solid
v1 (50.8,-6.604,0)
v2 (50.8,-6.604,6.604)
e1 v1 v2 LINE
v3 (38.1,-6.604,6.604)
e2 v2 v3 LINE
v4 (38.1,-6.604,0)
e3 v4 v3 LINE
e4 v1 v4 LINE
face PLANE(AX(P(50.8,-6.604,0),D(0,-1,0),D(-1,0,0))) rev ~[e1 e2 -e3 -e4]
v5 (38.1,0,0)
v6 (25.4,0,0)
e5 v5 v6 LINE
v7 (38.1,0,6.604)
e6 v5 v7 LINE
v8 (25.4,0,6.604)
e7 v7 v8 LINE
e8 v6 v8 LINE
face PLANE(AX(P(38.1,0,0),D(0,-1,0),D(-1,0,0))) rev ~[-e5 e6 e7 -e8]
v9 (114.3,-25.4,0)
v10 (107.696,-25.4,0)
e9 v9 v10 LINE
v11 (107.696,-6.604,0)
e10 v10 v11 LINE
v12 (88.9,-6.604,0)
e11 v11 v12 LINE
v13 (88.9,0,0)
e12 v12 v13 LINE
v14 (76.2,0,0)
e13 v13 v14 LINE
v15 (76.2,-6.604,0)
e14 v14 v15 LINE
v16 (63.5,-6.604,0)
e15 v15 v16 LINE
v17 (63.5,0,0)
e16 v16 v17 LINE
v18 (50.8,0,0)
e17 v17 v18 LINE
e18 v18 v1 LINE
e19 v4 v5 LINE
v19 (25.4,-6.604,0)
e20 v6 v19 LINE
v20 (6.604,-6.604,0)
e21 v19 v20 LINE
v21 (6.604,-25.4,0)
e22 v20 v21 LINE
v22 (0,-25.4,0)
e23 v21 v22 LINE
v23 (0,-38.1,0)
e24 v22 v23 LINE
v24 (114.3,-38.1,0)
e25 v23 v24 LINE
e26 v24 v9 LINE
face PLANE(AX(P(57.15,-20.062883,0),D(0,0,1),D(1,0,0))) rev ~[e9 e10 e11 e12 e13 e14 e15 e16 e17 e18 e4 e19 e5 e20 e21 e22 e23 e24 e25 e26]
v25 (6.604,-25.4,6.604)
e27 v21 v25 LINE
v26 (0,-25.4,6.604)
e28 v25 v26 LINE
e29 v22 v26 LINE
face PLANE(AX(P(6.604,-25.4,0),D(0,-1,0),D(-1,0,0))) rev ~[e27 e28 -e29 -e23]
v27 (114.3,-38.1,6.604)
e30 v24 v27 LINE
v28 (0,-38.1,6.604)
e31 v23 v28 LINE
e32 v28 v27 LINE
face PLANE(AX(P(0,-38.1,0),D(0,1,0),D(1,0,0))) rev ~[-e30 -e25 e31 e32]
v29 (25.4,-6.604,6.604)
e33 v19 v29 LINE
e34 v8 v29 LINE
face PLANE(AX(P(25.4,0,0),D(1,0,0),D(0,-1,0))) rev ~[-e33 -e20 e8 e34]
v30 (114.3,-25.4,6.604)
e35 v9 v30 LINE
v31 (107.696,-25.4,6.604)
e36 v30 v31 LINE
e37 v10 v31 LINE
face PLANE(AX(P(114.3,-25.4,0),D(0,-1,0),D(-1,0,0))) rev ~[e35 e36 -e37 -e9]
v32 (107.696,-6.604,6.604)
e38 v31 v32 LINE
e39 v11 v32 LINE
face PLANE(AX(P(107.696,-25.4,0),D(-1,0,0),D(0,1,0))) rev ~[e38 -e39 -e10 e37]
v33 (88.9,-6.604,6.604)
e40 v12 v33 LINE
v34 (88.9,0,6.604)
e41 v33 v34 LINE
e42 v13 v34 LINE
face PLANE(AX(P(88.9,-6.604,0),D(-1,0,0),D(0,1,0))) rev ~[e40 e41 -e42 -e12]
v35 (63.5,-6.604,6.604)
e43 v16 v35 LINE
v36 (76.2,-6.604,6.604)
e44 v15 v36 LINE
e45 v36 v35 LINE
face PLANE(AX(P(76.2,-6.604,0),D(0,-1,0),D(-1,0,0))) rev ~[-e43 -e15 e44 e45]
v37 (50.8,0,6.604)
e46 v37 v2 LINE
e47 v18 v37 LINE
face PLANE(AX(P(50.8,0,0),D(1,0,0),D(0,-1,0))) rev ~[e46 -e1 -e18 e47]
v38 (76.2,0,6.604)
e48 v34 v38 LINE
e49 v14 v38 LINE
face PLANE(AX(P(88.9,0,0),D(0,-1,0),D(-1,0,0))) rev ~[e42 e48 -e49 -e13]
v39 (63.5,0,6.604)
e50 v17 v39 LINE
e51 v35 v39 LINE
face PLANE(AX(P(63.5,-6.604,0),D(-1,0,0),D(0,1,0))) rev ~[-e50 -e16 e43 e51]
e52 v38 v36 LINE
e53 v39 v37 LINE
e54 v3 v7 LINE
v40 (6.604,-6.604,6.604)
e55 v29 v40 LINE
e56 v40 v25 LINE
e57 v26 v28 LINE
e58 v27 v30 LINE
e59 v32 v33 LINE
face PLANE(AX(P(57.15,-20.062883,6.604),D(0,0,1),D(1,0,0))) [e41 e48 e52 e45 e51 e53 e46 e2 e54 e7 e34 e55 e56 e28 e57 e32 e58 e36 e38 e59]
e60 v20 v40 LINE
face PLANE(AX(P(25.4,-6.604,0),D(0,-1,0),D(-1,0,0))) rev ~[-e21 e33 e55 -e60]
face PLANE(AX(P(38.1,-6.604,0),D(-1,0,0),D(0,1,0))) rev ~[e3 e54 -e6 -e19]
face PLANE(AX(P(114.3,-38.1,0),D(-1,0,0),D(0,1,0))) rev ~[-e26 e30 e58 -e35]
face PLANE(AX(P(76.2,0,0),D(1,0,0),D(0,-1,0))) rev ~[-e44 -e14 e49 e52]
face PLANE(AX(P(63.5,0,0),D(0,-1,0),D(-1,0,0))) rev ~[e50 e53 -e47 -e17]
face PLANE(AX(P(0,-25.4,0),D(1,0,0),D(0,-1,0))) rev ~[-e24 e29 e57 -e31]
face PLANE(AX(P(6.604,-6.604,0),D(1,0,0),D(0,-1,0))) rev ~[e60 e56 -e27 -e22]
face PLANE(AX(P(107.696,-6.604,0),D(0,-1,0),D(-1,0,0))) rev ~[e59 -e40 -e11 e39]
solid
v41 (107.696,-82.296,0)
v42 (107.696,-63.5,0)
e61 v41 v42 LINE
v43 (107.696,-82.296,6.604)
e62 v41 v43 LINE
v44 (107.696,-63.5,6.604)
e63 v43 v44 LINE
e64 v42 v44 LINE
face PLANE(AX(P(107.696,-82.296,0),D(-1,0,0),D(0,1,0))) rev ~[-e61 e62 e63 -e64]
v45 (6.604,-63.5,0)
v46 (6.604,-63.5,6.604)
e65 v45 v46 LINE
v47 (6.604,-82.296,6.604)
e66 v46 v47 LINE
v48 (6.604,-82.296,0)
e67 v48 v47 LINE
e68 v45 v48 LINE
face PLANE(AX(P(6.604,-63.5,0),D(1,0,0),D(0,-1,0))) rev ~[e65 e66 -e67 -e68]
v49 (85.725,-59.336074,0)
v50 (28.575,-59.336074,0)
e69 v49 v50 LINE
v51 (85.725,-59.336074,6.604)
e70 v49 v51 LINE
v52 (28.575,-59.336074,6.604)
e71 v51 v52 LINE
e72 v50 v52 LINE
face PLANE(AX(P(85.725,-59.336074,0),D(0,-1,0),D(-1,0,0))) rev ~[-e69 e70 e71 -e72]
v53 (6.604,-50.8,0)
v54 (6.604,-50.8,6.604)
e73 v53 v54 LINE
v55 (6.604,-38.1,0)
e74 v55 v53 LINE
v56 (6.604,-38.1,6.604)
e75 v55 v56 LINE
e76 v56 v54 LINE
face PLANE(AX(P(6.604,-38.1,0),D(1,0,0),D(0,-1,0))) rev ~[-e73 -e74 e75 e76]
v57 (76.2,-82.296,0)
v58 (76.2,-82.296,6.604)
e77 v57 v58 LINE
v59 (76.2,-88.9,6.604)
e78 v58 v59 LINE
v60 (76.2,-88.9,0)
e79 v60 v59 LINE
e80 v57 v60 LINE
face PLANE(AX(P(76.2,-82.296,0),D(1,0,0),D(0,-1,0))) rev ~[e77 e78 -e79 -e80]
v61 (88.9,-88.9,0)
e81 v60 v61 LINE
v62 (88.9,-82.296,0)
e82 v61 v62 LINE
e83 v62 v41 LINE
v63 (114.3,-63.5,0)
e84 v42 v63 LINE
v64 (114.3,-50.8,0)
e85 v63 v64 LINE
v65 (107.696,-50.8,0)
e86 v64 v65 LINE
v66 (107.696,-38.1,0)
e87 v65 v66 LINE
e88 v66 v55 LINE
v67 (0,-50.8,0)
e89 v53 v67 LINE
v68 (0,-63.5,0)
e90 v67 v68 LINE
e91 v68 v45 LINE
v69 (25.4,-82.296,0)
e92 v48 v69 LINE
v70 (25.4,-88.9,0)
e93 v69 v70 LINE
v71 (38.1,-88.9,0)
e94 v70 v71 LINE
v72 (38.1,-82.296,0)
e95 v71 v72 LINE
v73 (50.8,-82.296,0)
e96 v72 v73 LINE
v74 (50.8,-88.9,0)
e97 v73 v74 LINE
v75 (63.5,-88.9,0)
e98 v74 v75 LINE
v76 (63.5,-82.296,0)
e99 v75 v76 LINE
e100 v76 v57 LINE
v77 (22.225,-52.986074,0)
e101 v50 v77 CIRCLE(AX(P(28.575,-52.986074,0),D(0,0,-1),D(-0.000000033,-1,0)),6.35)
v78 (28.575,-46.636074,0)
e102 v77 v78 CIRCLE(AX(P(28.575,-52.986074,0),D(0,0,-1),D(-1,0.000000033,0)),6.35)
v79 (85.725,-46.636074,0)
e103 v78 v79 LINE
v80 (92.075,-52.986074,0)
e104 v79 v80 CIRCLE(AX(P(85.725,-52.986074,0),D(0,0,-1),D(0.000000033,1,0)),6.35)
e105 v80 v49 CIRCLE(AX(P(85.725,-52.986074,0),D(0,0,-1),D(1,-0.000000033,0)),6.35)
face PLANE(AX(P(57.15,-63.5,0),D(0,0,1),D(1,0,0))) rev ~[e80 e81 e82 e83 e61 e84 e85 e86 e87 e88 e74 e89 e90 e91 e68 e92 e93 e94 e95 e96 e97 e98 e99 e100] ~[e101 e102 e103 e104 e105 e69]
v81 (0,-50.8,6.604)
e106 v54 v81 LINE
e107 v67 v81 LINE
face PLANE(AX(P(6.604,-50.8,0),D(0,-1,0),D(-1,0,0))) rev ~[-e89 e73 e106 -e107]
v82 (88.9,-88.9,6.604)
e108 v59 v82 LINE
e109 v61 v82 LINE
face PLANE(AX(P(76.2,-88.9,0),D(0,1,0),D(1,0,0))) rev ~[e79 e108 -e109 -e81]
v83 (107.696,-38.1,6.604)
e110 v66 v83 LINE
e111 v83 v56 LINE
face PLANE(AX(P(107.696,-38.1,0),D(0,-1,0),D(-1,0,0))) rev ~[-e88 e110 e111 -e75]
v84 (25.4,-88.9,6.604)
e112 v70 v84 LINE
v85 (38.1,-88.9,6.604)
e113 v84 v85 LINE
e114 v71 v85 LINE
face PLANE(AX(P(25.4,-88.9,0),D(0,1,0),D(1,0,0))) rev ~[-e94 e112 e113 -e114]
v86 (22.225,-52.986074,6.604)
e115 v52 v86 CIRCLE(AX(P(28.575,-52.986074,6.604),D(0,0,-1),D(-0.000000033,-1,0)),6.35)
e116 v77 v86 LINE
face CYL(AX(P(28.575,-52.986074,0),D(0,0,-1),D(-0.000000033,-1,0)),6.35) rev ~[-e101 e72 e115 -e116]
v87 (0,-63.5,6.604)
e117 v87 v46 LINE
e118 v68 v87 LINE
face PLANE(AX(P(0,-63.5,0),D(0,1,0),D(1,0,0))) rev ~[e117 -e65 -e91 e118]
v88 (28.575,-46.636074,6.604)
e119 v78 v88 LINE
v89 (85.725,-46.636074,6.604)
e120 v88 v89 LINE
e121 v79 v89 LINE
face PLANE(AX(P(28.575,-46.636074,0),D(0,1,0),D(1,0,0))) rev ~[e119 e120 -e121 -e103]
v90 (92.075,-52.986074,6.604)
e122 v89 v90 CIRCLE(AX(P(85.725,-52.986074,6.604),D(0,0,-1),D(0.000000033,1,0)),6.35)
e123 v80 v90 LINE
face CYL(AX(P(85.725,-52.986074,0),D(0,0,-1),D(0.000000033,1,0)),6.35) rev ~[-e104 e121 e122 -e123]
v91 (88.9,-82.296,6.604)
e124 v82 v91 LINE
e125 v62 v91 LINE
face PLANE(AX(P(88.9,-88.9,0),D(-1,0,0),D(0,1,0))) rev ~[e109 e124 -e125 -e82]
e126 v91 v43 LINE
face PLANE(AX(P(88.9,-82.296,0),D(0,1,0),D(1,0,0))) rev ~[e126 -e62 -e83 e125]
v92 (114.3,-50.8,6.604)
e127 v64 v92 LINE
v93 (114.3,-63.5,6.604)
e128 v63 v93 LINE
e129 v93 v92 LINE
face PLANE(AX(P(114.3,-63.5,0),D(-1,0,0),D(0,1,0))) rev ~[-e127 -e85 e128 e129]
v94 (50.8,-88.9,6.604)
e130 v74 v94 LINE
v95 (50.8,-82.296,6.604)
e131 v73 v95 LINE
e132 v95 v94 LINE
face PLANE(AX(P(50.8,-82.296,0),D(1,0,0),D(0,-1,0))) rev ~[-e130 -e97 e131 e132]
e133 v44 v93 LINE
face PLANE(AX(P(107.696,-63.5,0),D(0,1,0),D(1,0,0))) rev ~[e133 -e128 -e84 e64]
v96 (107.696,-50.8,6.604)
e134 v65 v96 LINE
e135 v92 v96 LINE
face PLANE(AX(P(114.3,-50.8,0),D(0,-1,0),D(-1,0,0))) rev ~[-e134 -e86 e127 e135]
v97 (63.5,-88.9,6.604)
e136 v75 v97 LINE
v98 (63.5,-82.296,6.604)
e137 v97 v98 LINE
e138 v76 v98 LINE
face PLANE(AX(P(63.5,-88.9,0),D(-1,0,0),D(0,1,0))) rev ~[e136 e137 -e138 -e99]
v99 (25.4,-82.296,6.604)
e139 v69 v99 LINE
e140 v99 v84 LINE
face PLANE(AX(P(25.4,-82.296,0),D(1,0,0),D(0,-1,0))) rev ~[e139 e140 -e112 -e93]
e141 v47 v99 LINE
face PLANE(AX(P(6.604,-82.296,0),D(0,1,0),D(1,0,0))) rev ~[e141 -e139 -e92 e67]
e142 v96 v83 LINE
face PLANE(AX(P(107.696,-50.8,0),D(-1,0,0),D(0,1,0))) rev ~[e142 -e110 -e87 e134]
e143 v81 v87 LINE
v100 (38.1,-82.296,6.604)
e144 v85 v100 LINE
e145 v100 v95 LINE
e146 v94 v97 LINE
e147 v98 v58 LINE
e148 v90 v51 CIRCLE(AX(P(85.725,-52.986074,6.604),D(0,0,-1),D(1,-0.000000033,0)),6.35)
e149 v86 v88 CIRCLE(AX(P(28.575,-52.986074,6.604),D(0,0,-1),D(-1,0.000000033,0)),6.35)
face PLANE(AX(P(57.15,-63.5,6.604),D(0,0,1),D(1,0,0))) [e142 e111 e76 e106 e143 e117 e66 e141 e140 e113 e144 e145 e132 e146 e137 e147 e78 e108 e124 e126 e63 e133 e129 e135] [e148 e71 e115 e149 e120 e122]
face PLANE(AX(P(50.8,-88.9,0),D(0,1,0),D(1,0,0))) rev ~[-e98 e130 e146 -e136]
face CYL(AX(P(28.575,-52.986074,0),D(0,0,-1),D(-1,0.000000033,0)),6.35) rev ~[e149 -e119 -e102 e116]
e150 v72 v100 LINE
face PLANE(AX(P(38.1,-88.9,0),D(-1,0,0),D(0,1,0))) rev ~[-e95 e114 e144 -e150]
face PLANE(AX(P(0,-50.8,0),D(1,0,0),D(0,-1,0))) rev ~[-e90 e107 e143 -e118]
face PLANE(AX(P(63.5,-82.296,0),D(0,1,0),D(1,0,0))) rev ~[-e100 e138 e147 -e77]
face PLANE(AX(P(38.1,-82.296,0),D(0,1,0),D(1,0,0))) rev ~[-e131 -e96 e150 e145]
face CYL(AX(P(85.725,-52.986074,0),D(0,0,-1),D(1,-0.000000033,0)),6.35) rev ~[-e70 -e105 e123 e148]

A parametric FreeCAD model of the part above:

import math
import FreeCAD as App
import Part
import Sketcher

V = App.Vector
Q = App.Units.Quantity

doc = App.newDocument("Part")
body = doc.addObject("PartDesign::Body", "Body")

# Sketch on XY plane
sketch1 = body.newObject("Sketcher::SketchObject", "Sketch")
sketch1.AttachmentSupport = (doc.getObject("XY_Plane"), [""])
sketch1.MapMode = "FlatFace"
sketch1.addGeometry([
    Part.LineSegment(V(38, 0, 0), V(25, 0, 0)),  # 0
    Part.LineSegment(V(25, 0, 0), V(25, -7, 0)),  # 1
    Part.LineSegment(V(25, -7, 0), V(7, -7, 0)),  # 2
    Part.LineSegment(V(7, -7, 0), V(7, -25, 0)),  # 3
    Part.LineSegment(V(7, -25, 0), V(0, -25, 0)),  # 4
    Part.LineSegment(V(0, -25, 0), V(0, -38, 0)),  # 5
    Part.LineSegment(V(0, -38, 0), V(114, -38, 0)),  # 6
    Part.LineSegment(V(114, -38, 0), V(114, -25, 0)),  # 7
    Part.LineSegment(V(114, -25, 0), V(108, -25, 0)),  # 8
    Part.LineSegment(V(108, -25, 0), V(108, -7, 0)),  # 9
    Part.LineSegment(V(108, -7, 0), V(89, -7, 0)),  # 10
    Part.LineSegment(V(89, -7, 0), V(89, 0, 0)),  # 11
    Part.LineSegment(V(89, 0, 0), V(76, 0, 0)),  # 12
    Part.LineSegment(V(76, 0, 0), V(76, -7, 0)),  # 13
    Part.LineSegment(V(76, -7, 0), V(64, -7, 0)),  # 14
    Part.LineSegment(V(64, -7, 0), V(64, 0, 0)),  # 15
    Part.LineSegment(V(64, 0, 0), V(51, 0, 0)),  # 16
    Part.LineSegment(V(51, 0, 0), V(51, -7, 0)),  # 17
    Part.LineSegment(V(51, -7, 0), V(38, -7, 0)),  # 18
    Part.LineSegment(V(38, -7, 0), V(38, 0, 0)),  # 19
], False)
sketch1.addConstraint([
    Sketcher.Constraint("Coincident", 0, 2, 1, 1),
    Sketcher.Constraint("Coincident", 1, 2, 2, 1),
    Sketcher.Constraint("Coincident", 2, 2, 3, 1),
    Sketcher.Constraint("Coincident", 3, 2, 4, 1),
    Sketcher.Constraint("Coincident", 4, 2, 5, 1),
    Sketcher.Constraint("Coincident", 5, 2, 6, 1),
    Sketcher.Constraint("Coincident", 6, 2, 7, 1),
    Sketcher.Constraint("Coincident", 7, 2, 8, 1),
    Sketcher.Constraint("Coincident", 8, 2, 9, 1),
    Sketcher.Constraint("Coincident", 9, 2, 10, 1),
    Sketcher.Constraint("Coincident", 10, 2, 11, 1),
    Sketcher.Constraint("Coincident", 11, 2, 12, 1),
    Sketcher.Constraint("Coincident", 12, 2, 13, 1),
    Sketcher.Constraint("Coincident", 13, 2, 14, 1),
    Sketcher.Constraint("Coincident", 14, 2, 15, 1),
    Sketcher.Constraint("Coincident", 15, 2, 16, 1),
    Sketcher.Constraint("Coincident", 16, 2, 17, 1),
    Sketcher.Constraint("Coincident", 17, 2, 18, 1),
    Sketcher.Constraint("Coincident", 18, 2, 19, 1),
    Sketcher.Constraint("Coincident", 19, 2, 0, 1),
    Sketcher.Constraint("Horizontal", 0),
    Sketcher.Constraint("Vertical", 1),
    Sketcher.Constraint("Horizontal", 2),
    Sketcher.Constraint("Vertical", 3),
    Sketcher.Constraint("Horizontal", 4),
    Sketcher.Constraint("Vertical", 5),
    Sketcher.Constraint("Horizontal", 6),
    Sketcher.Constraint("Vertical", 7),
    Sketcher.Constraint("Horizontal", 8),
    Sketcher.Constraint("Vertical", 9),
    Sketcher.Constraint("Horizontal", 10),
    Sketcher.Constraint("Vertical", 11),
    Sketcher.Constraint("Horizontal", 12),
    Sketcher.Constraint("Vertical", 13),
    Sketcher.Constraint("Horizontal", 14),
    Sketcher.Constraint("Vertical", 15),
    Sketcher.Constraint("Horizontal", 16),
    Sketcher.Constraint("Vertical", 17),
    Sketcher.Constraint("Horizontal", 18),
    Sketcher.Constraint("Vertical", 19),
    Sketcher.Constraint("PointOnObject", 0, 2, -1),
    Sketcher.Constraint("PointOnObject", 4, 2, -2),
    Sketcher.Constraint("PointOnObject", 11, 2, -1),
    Sketcher.Constraint("PointOnObject", 15, 2, -1),
    Sketcher.Constraint("Horizontal", 4, 2, 7, 2),
    Sketcher.Constraint("Horizontal", 2, 2, 9, 2),
    Sketcher.Constraint("Horizontal", 10, 2, 13, 2),
    Sketcher.Constraint("Horizontal", 14, 2, 17, 2),
    Sketcher.Constraint("Equal", 4, 8),
    Sketcher.Constraint("Equal", 2, 10),
    Sketcher.Constraint("Equal", 0, 12),
    Sketcher.Constraint("Equal", 12, 14),
    Sketcher.Constraint("Equal", 14, 16),
    Sketcher.Constraint("Equal", 16, 18),
    Sketcher.Constraint("Equal", 8, 1),
    Sketcher.Constraint("Equal", 10, 3),
    Sketcher.Constraint("Equal", 18, 5),
    Sketcher.Constraint("DistanceX", 0, 2, 0, 1, Q("0.5 in")),
    Sketcher.Constraint("DistanceX", 6, 1, 6, 2, Q("4.5 in")),
    Sketcher.Constraint("DistanceX", 2, 2, 2, 1, Q("0.74 in")),
])
pad1 = body.newObject("PartDesign::Pad", "Pad")
pad1.Profile = sketch1
pad1.Length = Q("0.26 in")
body2 = doc.addObject("PartDesign::Body", "Body001")

# Sketch on XY plane
sketch2 = body2.newObject("Sketcher::SketchObject", "Sketch001")
sketch2.AttachmentSupport = (doc.getObject("XY_Plane001"), [""])
sketch2.MapMode = "FlatFace"
sketch2.addGeometry([
    Part.LineSegment(V(108, -38, 0), V(7, -38, 0)),  # 0
    Part.LineSegment(V(7, -38, 0), V(7, -51, 0)),  # 1
    Part.LineSegment(V(7, -51, 0), V(0, -51, 0)),  # 2
    Part.LineSegment(V(0, -51, 0), V(0, -64, 0)),  # 3
    Part.LineSegment(V(0, -64, 0), V(7, -64, 0)),  # 4
    Part.LineSegment(V(7, -64, 0), V(7, -82, 0)),  # 5
    Part.LineSegment(V(7, -82, 0), V(25, -82, 0)),  # 6
    Part.LineSegment(V(25, -82, 0), V(25, -89, 0)),  # 7
    Part.LineSegment(V(25, -89, 0), V(38, -89, 0)),  # 8
    Part.LineSegment(V(38, -89, 0), V(38, -82, 0)),  # 9
    Part.LineSegment(V(38, -82, 0), V(51, -82, 0)),  # 10
    Part.LineSegment(V(51, -82, 0), V(51, -89, 0)),  # 11
    Part.LineSegment(V(51, -89, 0), V(64, -89, 0)),  # 12
    Part.LineSegment(V(64, -89, 0), V(64, -82, 0)),  # 13
    Part.LineSegment(V(64, -82, 0), V(76, -82, 0)),  # 14
    Part.LineSegment(V(76, -82, 0), V(76, -89, 0)),  # 15
    Part.LineSegment(V(76, -89, 0), V(89, -89, 0)),  # 16
    Part.LineSegment(V(89, -89, 0), V(89, -82, 0)),  # 17
    Part.LineSegment(V(89, -82, 0), V(108, -82, 0)),  # 18
    Part.LineSegment(V(108, -82, 0), V(108, -64, 0)),  # 19
    Part.LineSegment(V(108, -64, 0), V(114, -64, 0)),  # 20
    Part.LineSegment(V(114, -64, 0), V(114, -51, 0)),  # 21
    Part.LineSegment(V(114, -51, 0), V(108, -51, 0)),  # 22
    Part.LineSegment(V(108, -51, 0), V(108, -38, 0)),  # 23
    Part.ArcOfCircle(Part.Circle(V(29, -53, 0), V(0, 0, 1), 6), math.radians(-180), math.radians(-90)),  # 24
    Part.ArcOfCircle(Part.Circle(V(29, -53, 0), V(0, 0, 1), 6), math.radians(90), math.radians(180)),  # 25
    Part.LineSegment(V(29, -47, 0), V(86, -47, 0)),  # 26
    Part.ArcOfCircle(Part.Circle(V(86, -53, 0), V(0, 0, 1), 6), math.radians(0), math.radians(90)),  # 27
    Part.ArcOfCircle(Part.Circle(V(86, -53, 0), V(0, 0, 1), 6), math.radians(-90), math.radians(0)),  # 28
    Part.LineSegment(V(86, -59, 0), V(29, -59, 0)),  # 29
], False)
sketch2.addConstraint([
    Sketcher.Constraint("Coincident", 0, 2, 1, 1),
    Sketcher.Constraint("Coincident", 1, 2, 2, 1),
    Sketcher.Constraint("Coincident", 2, 2, 3, 1),
    Sketcher.Constraint("Coincident", 3, 2, 4, 1),
    Sketcher.Constraint("Coincident", 4, 2, 5, 1),
    Sketcher.Constraint("Coincident", 5, 2, 6, 1),
    Sketcher.Constraint("Coincident", 6, 2, 7, 1),
    Sketcher.Constraint("Coincident", 7, 2, 8, 1),
    Sketcher.Constraint("Coincident", 8, 2, 9, 1),
    Sketcher.Constraint("Coincident", 9, 2, 10, 1),
    Sketcher.Constraint("Coincident", 10, 2, 11, 1),
    Sketcher.Constraint("Coincident", 11, 2, 12, 1),
    Sketcher.Constraint("Coincident", 12, 2, 13, 1),
    Sketcher.Constraint("Coincident", 13, 2, 14, 1),
    Sketcher.Constraint("Coincident", 14, 2, 15, 1),
    Sketcher.Constraint("Coincident", 15, 2, 16, 1),
    Sketcher.Constraint("Coincident", 16, 2, 17, 1),
    Sketcher.Constraint("Coincident", 17, 2, 18, 1),
    Sketcher.Constraint("Coincident", 18, 2, 19, 1),
    Sketcher.Constraint("Coincident", 19, 2, 20, 1),
    Sketcher.Constraint("Coincident", 20, 2, 21, 1),
    Sketcher.Constraint("Coincident", 21, 2, 22, 1),
    Sketcher.Constraint("Coincident", 22, 2, 23, 1),
    Sketcher.Constraint("Coincident", 23, 2, 0, 1),
    Sketcher.Constraint("Tangent", 24, 1, 25, 2),
    Sketcher.Constraint("Tangent", 25, 1, 26, 1),
    Sketcher.Constraint("Tangent", 26, 2, 27, 2),
    Sketcher.Constraint("Tangent", 27, 1, 28, 2),
    Sketcher.Constraint("Tangent", 28, 1, 29, 1),
    Sketcher.Constraint("Tangent", 29, 2, 24, 2),
    Sketcher.Constraint("Horizontal", 0),
    Sketcher.Constraint("Vertical", 1),
    Sketcher.Constraint("Horizontal", 2),
    Sketcher.Constraint("Vertical", 3),
    Sketcher.Constraint("Horizontal", 4),
    Sketcher.Constraint("Vertical", 5),
    Sketcher.Constraint("Horizontal", 6),
    Sketcher.Constraint("Vertical", 7),
    Sketcher.Constraint("Horizontal", 8),
    Sketcher.Constraint("Vertical", 9),
    Sketcher.Constraint("Horizontal", 10),
    Sketcher.Constraint("Vertical", 11),
    Sketcher.Constraint("Horizontal", 12),
    Sketcher.Constraint("Vertical", 13),
    Sketcher.Constraint("Horizontal", 14),
    Sketcher.Constraint("Vertical", 15),
    Sketcher.Constraint("Horizontal", 16),
    Sketcher.Constraint("Vertical", 17),
    Sketcher.Constraint("Horizontal", 18),
    Sketcher.Constraint("Vertical", 19),
    Sketcher.Constraint("Horizontal", 20),
    Sketcher.Constraint("Vertical", 21),
    Sketcher.Constraint("Horizontal", 22),
    Sketcher.Constraint("Vertical", 23),
    Sketcher.Constraint("Horizontal", 26),
    Sketcher.Constraint("Horizontal", 29),
    Sketcher.Constraint("Equal", 24, 25),
    Sketcher.Constraint("Equal", 25, 27),
    Sketcher.Constraint("PointOnObject", 2, 2, -2),
    Sketcher.Constraint("Horizontal", 6, 2, 9, 2),
    Sketcher.Constraint("Horizontal", 8, 2, 11, 2),
    Sketcher.Constraint("Horizontal", 10, 2, 13, 2),
    Sketcher.Constraint("Horizontal", 12, 2, 15, 2),
    Sketcher.Constraint("Horizontal", 14, 2, 17, 2),
    Sketcher.Constraint("Horizontal", 4, 2, 19, 2),
    Sketcher.Constraint("Horizontal", 2, 2, 21, 2),
    Sketcher.Constraint("Horizontal", 28, 3, 24, 1),
    Sketcher.Constraint("Horizontal", 24, 1, 27, 1),
    Sketcher.Constraint("Vertical", 1, 2, 4, 2),
    Sketcher.Constraint("Vertical", 19, 2, 22, 2),
    Sketcher.Constraint("Equal", 8, 10),
    Sketcher.Constraint("Equal", 10, 12),
    Sketcher.Constraint("Equal", 12, 14),
    Sketcher.Constraint("Equal", 14, 16),
    Sketcher.Constraint("Equal", 6, 18),
    Sketcher.Constraint("Equal", 4, 20),
    Sketcher.Constraint("Equal", 16, 1),
    Sketcher.Constraint("Equal", 1, 3),
    Sketcher.Constraint("Equal", 18, 5),
    Sketcher.Constraint("Equal", 22, 7),
    Sketcher.Constraint("Radius", 24, Q("0.25 in")),
    Sketcher.Constraint("DistanceX", 8, 1, 8, 2, Q("0.5 in")),
    Sketcher.Constraint("DistanceY", 1, 2, -1, 1, Q("2 in")),
    Sketcher.Constraint("DistanceX", -1, 1, 6, 2, Q("1 in")),
    Sketcher.Constraint("DistanceX", 0, 2, 0, 1, Q("3.98 in")),
    Sketcher.Constraint("DistanceX", 26, 1, 26, 2, Q("2.25 in")),
    Sketcher.Constraint("DistanceX", -1, 1, 24, 3, Q("1.125 in")),
    Sketcher.Constraint("DistanceY", 24, 3, -1, 1, Q("52.986074 mm")),
])
pad2 = body2.newObject("PartDesign::Pad", "Pad001")
pad2.Profile = sketch2
pad2.Length = Q("0.26 in")

doc.recompute()
